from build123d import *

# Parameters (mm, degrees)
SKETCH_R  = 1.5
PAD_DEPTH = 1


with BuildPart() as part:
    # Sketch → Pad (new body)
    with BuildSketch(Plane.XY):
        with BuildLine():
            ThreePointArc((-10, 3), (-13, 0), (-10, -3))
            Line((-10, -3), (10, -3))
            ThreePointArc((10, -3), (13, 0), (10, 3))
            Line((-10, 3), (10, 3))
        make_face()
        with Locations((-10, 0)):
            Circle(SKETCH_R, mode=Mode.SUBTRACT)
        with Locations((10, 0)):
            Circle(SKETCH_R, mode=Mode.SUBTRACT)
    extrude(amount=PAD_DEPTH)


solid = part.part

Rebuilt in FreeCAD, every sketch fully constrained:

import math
import FreeCAD as App
import Part
import Sketcher
Q = App.Units.Quantity

doc = App.newDocument("Part")
params = doc.addObject("Spreadsheet::Sheet", "Params")
for row, (alias, value) in enumerate([
    ("sketch1_diameter", "3 mm"),
    ("sketch1_radius", "3 mm"),
    ("sketch1_width", "20 mm"),
    ("pad1_length", "1 mm"),
], start=1):
    params.set(f"A{row}", alias)
    params.set(f"B{row}", "=" + value)
    params.setAlias(f"B{row}", alias)

body = doc.addObject("PartDesign::Body", "Body")

# Sketch on XY plane
sketch1 = body.newObject("Sketcher::SketchObject", "Sketch")
sketch1.AttachmentSupport = (doc.getObject("XY_Plane"), [""])
sketch1.MapMode = "FlatFace"
sketch1.addGeometry([
    Part.ArcOfCircle(Part.Circle(App.Vector(-10, 0, 0), App.Vector(0, 0, 1), 3), math.radians(90), math.radians(270)),  # 0
    Part.LineSegment(App.Vector(-10, -3, 0), App.Vector(10, -3, 0)),  # 1
    Part.ArcOfCircle(Part.Circle(App.Vector(10, 0, 0), App.Vector(0, 0, 1), 3), math.radians(-90), math.radians(90)),  # 2
    Part.LineSegment(App.Vector(10, 3, 0), App.Vector(-10, 3, 0)),  # 3
    Part.Circle(App.Vector(-10, 0, 0), App.Vector(0, 0, 1), 1.5),  # 4
    Part.Circle(App.Vector(10, 0, 0), App.Vector(0, 0, 1), 1.5),  # 5
], False)
sketch1.addConstraint([
    Sketcher.Constraint("Tangent", 0, 2, 1, 1),
    Sketcher.Constraint("Tangent", 1, 2, 2, 1),
    Sketcher.Constraint("Tangent", 2, 2, 3, 1),
    Sketcher.Constraint("Tangent", 3, 2, 0, 1),
    Sketcher.Constraint("Horizontal", 1),
    Sketcher.Constraint("Horizontal", 3),
    Sketcher.Constraint("Coincident", 4, 3, 0, 3),
    Sketcher.Constraint("Coincident", 5, 3, 2, 3),
    Sketcher.Constraint("Equal", 4, 5),
    Sketcher.Constraint("Symmetric", 0, 3, 2, 3, -1, 1),
    Sketcher.Constraint("Diameter", 4, Q("3 mm")),
    Sketcher.Constraint("Radius", 0, Q("3 mm")),
    Sketcher.Constraint("DistanceX", 1, 1, 1, 2, Q("20 mm")),
])
sketch1.setExpression("Constraints[10]", "Params.sketch1_diameter")
sketch1.setExpression("Constraints[11]", "Params.sketch1_radius")
sketch1.setExpression("Constraints[12]", "Params.sketch1_width")
pad1 = body.newObject("PartDesign::Pad", "Pad")
pad1.Profile = sketch1
pad1.setExpression("Length", "Params.pad1_length")

doc.recompute()
